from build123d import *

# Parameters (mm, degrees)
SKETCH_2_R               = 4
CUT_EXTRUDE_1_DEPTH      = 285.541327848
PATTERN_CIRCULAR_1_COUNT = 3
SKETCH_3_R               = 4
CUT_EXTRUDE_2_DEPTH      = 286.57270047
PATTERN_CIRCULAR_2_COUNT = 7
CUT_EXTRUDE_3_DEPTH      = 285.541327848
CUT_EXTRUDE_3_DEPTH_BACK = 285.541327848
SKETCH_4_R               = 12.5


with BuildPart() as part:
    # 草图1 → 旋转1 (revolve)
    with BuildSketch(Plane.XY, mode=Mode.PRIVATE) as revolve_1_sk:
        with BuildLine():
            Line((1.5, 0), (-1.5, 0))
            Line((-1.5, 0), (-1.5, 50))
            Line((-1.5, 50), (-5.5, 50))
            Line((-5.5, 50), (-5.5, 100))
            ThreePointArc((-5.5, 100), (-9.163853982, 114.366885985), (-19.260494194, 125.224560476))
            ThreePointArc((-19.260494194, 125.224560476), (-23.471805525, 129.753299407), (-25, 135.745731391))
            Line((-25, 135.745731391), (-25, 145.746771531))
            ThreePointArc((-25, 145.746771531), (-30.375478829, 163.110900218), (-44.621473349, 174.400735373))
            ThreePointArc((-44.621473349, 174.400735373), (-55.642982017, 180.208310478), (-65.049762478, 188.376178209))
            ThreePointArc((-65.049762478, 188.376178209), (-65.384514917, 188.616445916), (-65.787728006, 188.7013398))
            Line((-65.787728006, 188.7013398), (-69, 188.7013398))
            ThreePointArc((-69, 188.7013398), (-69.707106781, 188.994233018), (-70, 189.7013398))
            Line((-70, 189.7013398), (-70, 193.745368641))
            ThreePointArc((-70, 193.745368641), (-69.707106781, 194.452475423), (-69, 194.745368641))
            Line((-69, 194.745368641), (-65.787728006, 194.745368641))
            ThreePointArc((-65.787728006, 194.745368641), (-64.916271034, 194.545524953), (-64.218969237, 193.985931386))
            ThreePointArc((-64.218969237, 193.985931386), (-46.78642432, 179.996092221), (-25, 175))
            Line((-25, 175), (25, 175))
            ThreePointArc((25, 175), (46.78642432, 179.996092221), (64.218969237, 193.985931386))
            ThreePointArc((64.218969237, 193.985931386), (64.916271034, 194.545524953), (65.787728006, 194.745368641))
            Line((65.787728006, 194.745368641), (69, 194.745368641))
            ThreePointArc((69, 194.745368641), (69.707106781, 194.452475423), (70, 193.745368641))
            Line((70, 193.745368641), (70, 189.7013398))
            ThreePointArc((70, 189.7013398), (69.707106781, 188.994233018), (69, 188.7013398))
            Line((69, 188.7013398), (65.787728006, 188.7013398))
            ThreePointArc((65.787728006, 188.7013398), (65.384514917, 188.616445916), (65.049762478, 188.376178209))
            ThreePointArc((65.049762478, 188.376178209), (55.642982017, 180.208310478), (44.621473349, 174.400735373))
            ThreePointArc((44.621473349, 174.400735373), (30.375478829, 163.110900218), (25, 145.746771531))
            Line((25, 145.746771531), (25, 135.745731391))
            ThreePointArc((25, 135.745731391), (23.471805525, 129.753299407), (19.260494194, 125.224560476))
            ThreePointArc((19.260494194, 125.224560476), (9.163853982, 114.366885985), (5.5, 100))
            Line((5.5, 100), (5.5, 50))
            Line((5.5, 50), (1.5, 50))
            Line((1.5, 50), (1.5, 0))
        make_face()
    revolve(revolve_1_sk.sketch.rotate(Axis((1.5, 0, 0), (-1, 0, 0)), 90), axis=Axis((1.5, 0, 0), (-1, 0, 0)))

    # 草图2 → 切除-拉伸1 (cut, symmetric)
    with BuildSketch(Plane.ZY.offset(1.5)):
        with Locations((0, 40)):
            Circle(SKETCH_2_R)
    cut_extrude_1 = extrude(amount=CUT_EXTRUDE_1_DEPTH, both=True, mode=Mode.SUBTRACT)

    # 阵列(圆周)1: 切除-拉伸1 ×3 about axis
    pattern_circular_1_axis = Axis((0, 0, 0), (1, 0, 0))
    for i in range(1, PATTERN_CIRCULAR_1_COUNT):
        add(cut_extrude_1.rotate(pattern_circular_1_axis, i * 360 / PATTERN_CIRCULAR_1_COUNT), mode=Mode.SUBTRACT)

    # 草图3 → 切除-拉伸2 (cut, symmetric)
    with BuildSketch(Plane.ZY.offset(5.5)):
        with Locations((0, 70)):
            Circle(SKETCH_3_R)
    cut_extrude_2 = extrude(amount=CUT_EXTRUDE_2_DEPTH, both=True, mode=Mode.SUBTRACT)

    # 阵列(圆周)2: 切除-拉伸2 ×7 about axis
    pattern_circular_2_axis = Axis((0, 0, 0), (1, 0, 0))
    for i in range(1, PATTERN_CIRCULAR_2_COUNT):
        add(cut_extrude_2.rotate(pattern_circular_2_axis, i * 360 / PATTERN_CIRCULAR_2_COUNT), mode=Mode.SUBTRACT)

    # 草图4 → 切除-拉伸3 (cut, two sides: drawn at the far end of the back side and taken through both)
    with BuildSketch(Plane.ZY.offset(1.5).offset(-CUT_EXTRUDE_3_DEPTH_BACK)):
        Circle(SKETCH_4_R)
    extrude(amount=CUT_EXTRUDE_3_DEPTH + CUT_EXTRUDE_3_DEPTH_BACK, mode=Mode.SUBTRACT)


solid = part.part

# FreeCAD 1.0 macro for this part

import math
import FreeCAD as App
import Part
import Sketcher

V = App.Vector

doc = App.newDocument("Part")
body = doc.addObject("PartDesign::Body", "Body")

# Sketch on XY plane
sketch1 = doc.addObject("Sketcher::SketchObject", "Sketch")
body.addObject(sketch1)
sketch1.AttachmentSupport = (doc.XY_Plane, [""])
sketch1.MapMode = "FlatFace"
sketch1.addGeometry([
    Part.LineSegment(V(-1.5, 0, 0), V(1.5, 0, 0)),  # 0
    Part.LineSegment(V(1.5, 0, 0), V(1.5, 50, 0)),  # 1
    Part.LineSegment(V(1.5, 50, 0), V(5.5, 50, 0)),  # 2
    Part.LineSegment(V(5.5, 50, 0), V(5.5, 100, 0)),  # 3
    Part.ArcOfCircle(Part.Circle(V(35.5, 100, 0), V(0, 0, 1), 30), math.radians(122.773328), math.radians(180)),  # 4
    Part.ArcOfCircle(Part.Circle(V(12.486992, 135.745731, 0), V(0, 0, 1), 12.513008), math.radians(-57.226672), math.radians(0)),  # 5
    Part.LineSegment(V(25, 135.745731, 0), V(25, 145.746772, 0)),  # 6
    Part.ArcOfCircle(Part.Circle(V(55.732959, 145.746772, 0), V(0, 0, 1), 30.732959), math.radians(111.195386), math.radians(180)),  # 7
    Part.ArcOfCircle(Part.Circle(V(25, 225, 0), V(0, 0, 1), 54.270506), math.radians(-68.804614), math.radians(-42.441603)),  # 8
    Part.ArcOfCircle(Part.Circle(V(65.787728, 187.70134, 0), V(0, 0, 1), 1), math.radians(90), math.radians(137.558397)),  # 9
    Part.LineSegment(V(65.787728, 188.70134, 0), V(69, 188.70134, 0)),  # 10
    Part.ArcOfCircle(Part.Circle(V(69, 189.70134, 0), V(0, 0, 1), 1), math.radians(-90), math.radians(0)),  # 11
    Part.LineSegment(V(70, 189.70134, 0), V(70, 193.745369, 0)),  # 12
    Part.ArcOfCircle(Part.Circle(V(69, 193.745369, 0), V(0, 0, 1), 1), math.radians(0), math.radians(90)),  # 13
    Part.LineSegment(V(69, 194.745369, 0), V(65.787728, 194.745369, 0)),  # 14
    Part.ArcOfCircle(Part.Circle(V(65.787728, 192.745369, 0), V(0, 0, 1), 2), math.radians(90), math.radians(141.663315)),  # 15
    Part.ArcOfCircle(Part.Circle(V(25, 225, 0), V(0, 0, 1), 50), math.radians(-90), math.radians(-38.336685)),  # 16
    Part.LineSegment(V(25, 175, 0), V(-25, 175, 0)),  # 17
    Part.ArcOfCircle(Part.Circle(V(-25, 225, 0), V(0, 0, 1), 50), math.radians(-141.663315), math.radians(-90)),  # 18
    Part.ArcOfCircle(Part.Circle(V(-65.787728, 192.745369, 0), V(0, 0, 1), 2), math.radians(38.336685), math.radians(90)),  # 19
    Part.LineSegment(V(-65.787728, 194.745369, 0), V(-69, 194.745369, 0)),  # 20
    Part.ArcOfCircle(Part.Circle(V(-69, 193.745369, 0), V(0, 0, 1), 1), math.radians(90), math.radians(180)),  # 21
    Part.LineSegment(V(-70, 193.745369, 0), V(-70, 189.70134, 0)),  # 22
    Part.ArcOfCircle(Part.Circle(V(-69, 189.70134, 0), V(0, 0, 1), 1), math.radians(180), math.radians(270)),  # 23
    Part.LineSegment(V(-69, 188.70134, 0), V(-65.787728, 188.70134, 0)),  # 24
    Part.ArcOfCircle(Part.Circle(V(-65.787728, 187.70134, 0), V(0, 0, 1), 1), math.radians(42.441603), math.radians(90)),  # 25
    Part.ArcOfCircle(Part.Circle(V(-25, 225, 0), V(0, 0, 1), 54.270506), math.radians(-137.558397), math.radians(-111.195386)),  # 26
    Part.ArcOfCircle(Part.Circle(V(-55.732959, 145.746772, 0), V(0, 0, 1), 30.732959), math.radians(0), math.radians(68.804614)),  # 27
    Part.LineSegment(V(-25, 145.746772, 0), V(-25, 135.745731, 0)),  # 28
    Part.ArcOfCircle(Part.Circle(V(-12.486992, 135.745731, 0), V(0, 0, 1), 12.513008), math.radians(180), math.radians(237.226672)),  # 29
    Part.ArcOfCircle(Part.Circle(V(-35.5, 100, 0), V(0, 0, 1), 30), math.radians(0), math.radians(57.226672)),  # 30
    Part.LineSegment(V(-5.5, 100, 0), V(-5.5, 50, 0)),  # 31
    Part.LineSegment(V(-5.5, 50, 0), V(-1.5, 50, 0)),  # 32
    Part.LineSegment(V(-1.5, 50, 0), V(-1.5, 0, 0)),  # 33
], False)
sketch1.addConstraint([
    Sketcher.Constraint("Coincident", 0, 2, 1, 1),
    Sketcher.Constraint("Coincident", 1, 2, 2, 1),
    Sketcher.Constraint("Coincident", 2, 2, 3, 1),
    Sketcher.Constraint("Tangent", 3, 2, 4, 2),
    Sketcher.Constraint("Tangent", 4, 1, 5, 1),
    Sketcher.Constraint("Tangent", 5, 2, 6, 1),
    Sketcher.Constraint("Tangent", 6, 2, 7, 2),
    Sketcher.Constraint("Tangent", 7, 1, 8, 1),
    Sketcher.Constraint("Tangent", 8, 2, 9, 2),
    Sketcher.Constraint("Tangent", 9, 1, 10, 1),
    Sketcher.Constraint("Tangent", 10, 2, 11, 1),
    Sketcher.Constraint("Tangent", 11, 2, 12, 1),
    Sketcher.Constraint("Tangent", 12, 2, 13, 1),
    Sketcher.Constraint("Tangent", 13, 2, 14, 1),
    Sketcher.Constraint("Tangent", 14, 2, 15, 1),
    Sketcher.Constraint("Tangent", 15, 2, 16, 2),
    Sketcher.Constraint("Tangent", 16, 1, 17, 1),
    Sketcher.Constraint("Tangent", 17, 2, 18, 2),
    Sketcher.Constraint("Tangent", 18, 1, 19, 1),
    Sketcher.Constraint("Tangent", 19, 2, 20, 1),
    Sketcher.Constraint("Tangent", 20, 2, 21, 1),
    Sketcher.Constraint("Tangent", 21, 2, 22, 1),
    Sketcher.Constraint("Tangent", 22, 2, 23, 1),
    Sketcher.Constraint("Tangent", 23, 2, 24, 1),
    Sketcher.Constraint("Tangent", 24, 2, 25, 2),
    Sketcher.Constraint("Tangent", 25, 1, 26, 1),
    Sketcher.Constraint("Tangent", 26, 2, 27, 2),
    Sketcher.Constraint("Tangent", 27, 1, 28, 1),
    Sketcher.Constraint("Tangent", 28, 2, 29, 1),
    Sketcher.Constraint("Tangent", 29, 2, 30, 2),
    Sketcher.Constraint("Tangent", 30, 1, 31, 1),
    Sketcher.Constraint("Coincident", 31, 2, 32, 1),
    Sketcher.Constraint("Coincident", 32, 2, 33, 1),
    Sketcher.Constraint("Coincident", 33, 2, 0, 1),
    Sketcher.Constraint("Horizontal", 0),
    Sketcher.Constraint("Vertical", 1),
    Sketcher.Constraint("Horizontal", 2),
    Sketcher.Constraint("Vertical", 3),
    Sketcher.Constraint("Vertical", 6),
    Sketcher.Constraint("Horizontal", 10),
    Sketcher.Constraint("Vertical", 12),
    Sketcher.Constraint("Horizontal", 14),
    Sketcher.Constraint("Horizontal", 17),
    Sketcher.Constraint("Horizontal", 20),
    Sketcher.Constraint("Vertical", 22),
    Sketcher.Constraint("Horizontal", 24),
    Sketcher.Constraint("Vertical", 28),
    Sketcher.Constraint("Vertical", 31),
    Sketcher.Constraint("Horizontal", 32),
    Sketcher.Constraint("Vertical", 33),
    Sketcher.Constraint("Coincident", 16, 3, 8, 3),
    Sketcher.Constraint("Coincident", 26, 3, 18, 3),
    Sketcher.Constraint("Equal", 9, 11),
    Sketcher.Constraint("Equal", 11, 13),
    Sketcher.Constraint("Equal", 16, 18),
    Sketcher.Constraint("Equal", 15, 19),
    Sketcher.Constraint("Equal", 13, 21),
    Sketcher.Constraint("Equal", 21, 23),
    Sketcher.Constraint("Equal", 23, 25),
    Sketcher.Constraint("Equal", 8, 26),
    Sketcher.Constraint("Equal", 7, 27),
    Sketcher.Constraint("Equal", 5, 29),
    Sketcher.Constraint("Equal", 4, 30),
    Sketcher.Constraint("Symmetric", 0, 2, 33, 2, -1, 1),
    Sketcher.Constraint("Symmetric", 15, 3, 19, 3, -2),
    Sketcher.Constraint("Symmetric", 11, 3, 23, 3, -2),
    Sketcher.Constraint("Symmetric", 5, 3, 29, 3, -2),
    Sketcher.Constraint("Symmetric", 2, 2, 31, 2, -2),
    Sketcher.Constraint("Vertical", 9, 3, 15, 3),
    Sketcher.Constraint("Vertical", 16, 3, 5, 2),
    Sketcher.Constraint("Equal", 17, 1),
    Sketcher.Constraint("Equal", 1, 3),
    Sketcher.Constraint("Radius", 4, 30.0),
    Sketcher.Constraint("Radius", 9, 1.0),
    Sketcher.Constraint("Radius", 15, 2.0),
    Sketcher.Constraint("Radius", 16, 50.0),
    Sketcher.Constraint("DistanceX", 0, 1, 0, 2, 3.0),
    Sketcher.Constraint("DistanceX", 2, 1, 2, 2, 4.0),
    Sketcher.Constraint("DistanceX", 17, 2, 17, 1, 50.0),
    Sketcher.Constraint("DistanceY", -1, 1, 8, 3, 225.0),
    Sketcher.Constraint("DistanceX", -1, 1, 11, 3, 69.0),
    Sketcher.Constraint("Radius", 5, 12.513008),
    Sketcher.Constraint("Radius", 7, 30.732959),
    Sketcher.Constraint("Radius", 8, 54.270506),
    Sketcher.Constraint("DistanceX", 10, 1, 10, 2, 3.212272),
])
revolution = doc.addObject("PartDesign::Revolution", "Revolution")
body.addObject(revolution)
revolution.Profile = sketch1
revolution.ReferenceAxis = (sketch1, ["H_Axis"])
revolution.Angle = 360

# Sketch on YZ plane
sketch2 = doc.addObject("Sketcher::SketchObject", "Sketch001")
body.addObject(sketch2)
sketch2.AttachmentSupport = (doc.YZ_Plane, [""])
sketch2.MapMode = "FlatFace"
sketch2.AttachmentOffset = App.Placement(V(0, 0, -1.5), App.Rotation())
sketch2.addGeometry(Part.Circle(V(40, 0, 0), V(0, 0, 1), 4), False)
sketch2.addConstraint([
    Sketcher.Constraint("PointOnObject", 0, 3, -1),
    Sketcher.Constraint("Diameter", 0, 8.0),
    Sketcher.Constraint("DistanceX", -1, 1, 0, 3, 40.0),
])
pocket1 = doc.addObject("PartDesign::Pocket", "Pocket")
body.addObject(pocket1)
pocket1.Profile = sketch2
pocket1.Length = 571.082656
pocket1.Midplane = True
doc.recompute()

polarpattern = doc.addObject("PartDesign::PolarPattern", "PolarPattern")
body.addObject(polarpattern)
polarpattern.Originals = [pocket1]
polarpattern.Axis = (doc.X_Axis, [""])
polarpattern.Angle = 360
polarpattern.Occurrences = 3
body.Tip = polarpattern

# Sketch on YZ plane
sketch3 = doc.addObject("Sketcher::SketchObject", "Sketch002")
body.addObject(sketch3)
sketch3.AttachmentSupport = (doc.YZ_Plane, [""])
sketch3.MapMode = "FlatFace"
sketch3.AttachmentOffset = App.Placement(V(0, 0, -5.5), App.Rotation())
sketch3.addGeometry(Part.Circle(V(70, 0, 0), V(0, 0, 1), 4), False)
sketch3.addConstraint([
    Sketcher.Constraint("PointOnObject", 0, 3, -1),
    Sketcher.Constraint("Diameter", 0, 8.0),
    Sketcher.Constraint("DistanceX", -1, 1, 0, 3, 70.0),
])
pocket2 = doc.addObject("PartDesign::Pocket", "Pocket001")
body.addObject(pocket2)
pocket2.Profile = sketch3
pocket2.Length = 573.145401
pocket2.Midplane = True
doc.recompute()

polarpattern2 = doc.addObject("PartDesign::PolarPattern", "PolarPattern001")
body.addObject(polarpattern2)
polarpattern2.Originals = [pocket2]
polarpattern2.Axis = (doc.X_Axis, [""])
polarpattern2.Angle = 360
polarpattern2.Occurrences = 7
body.Tip = polarpattern2

# Sketch on YZ plane
sketch4 = doc.addObject("Sketcher::SketchObject", "Sketch003")
body.addObject(sketch4)
sketch4.AttachmentSupport = (doc.YZ_Plane, [""])
sketch4.MapMode = "FlatFace"
sketch4.AttachmentOffset = App.Placement(V(0, 0, -1.5), App.Rotation())
sketch4.addGeometry(Part.Circle(V(0, 0, 0), V(0, 0, 1), 12.5), False)
sketch4.addConstraint([
    Sketcher.Constraint("Coincident", 0, 3, -1, 1),
    Sketcher.Constraint("Diameter", 0, 25.0),
])
pocket3 = doc.addObject("PartDesign::Pocket", "Pocket002")
body.addObject(pocket3)
pocket3.Profile = sketch4
pocket3.Type = "ThroughAll"
pocket3.Midplane = True

doc.recompute()
